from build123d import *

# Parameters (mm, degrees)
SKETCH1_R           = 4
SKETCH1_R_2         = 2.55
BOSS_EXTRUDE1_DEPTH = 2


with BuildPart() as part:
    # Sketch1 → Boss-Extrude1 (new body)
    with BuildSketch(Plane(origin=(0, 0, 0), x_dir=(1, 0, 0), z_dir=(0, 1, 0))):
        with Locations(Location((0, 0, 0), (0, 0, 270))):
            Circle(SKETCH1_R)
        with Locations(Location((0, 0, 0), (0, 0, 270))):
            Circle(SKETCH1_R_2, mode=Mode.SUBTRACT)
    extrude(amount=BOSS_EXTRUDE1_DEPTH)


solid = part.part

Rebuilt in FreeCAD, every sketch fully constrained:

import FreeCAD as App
import Part
import Sketcher
Q = App.Units.Quantity

doc = App.newDocument("Part")
body = doc.addObject("PartDesign::Body", "Body")

# Sketch on XZ plane
sketch1 = doc.addObject("Sketcher::SketchObject", "Sketch")
body.addObject(sketch1)
sketch1.AttachmentSupport = (doc.XZ_Plane, [""])
sketch1.MapMode = "FlatFace"
sketch1.addGeometry([
    Part.Circle(App.Vector(0, 0, 0), App.Vector(0, 0, 1), 4),
    Part.Circle(App.Vector(0, 0, 0), App.Vector(0, 0, 1), 2.5),
], False)
sketch1.addConstraint([
    Sketcher.Constraint("Coincident", 0, 3, -1, 1),
    Sketcher.Constraint("Coincident", 1, 3, -1, 1),
    Sketcher.Constraint("Diameter", 0, Q("8 mm")),
    Sketcher.Constraint("Diameter", 1, Q("5.1 mm")),
])
pad1 = doc.addObject("PartDesign::Pad", "Pad")
body.addObject(pad1)
pad1.Profile = sketch1
pad1.Length = 2
pad1.Reversed = True

doc.recompute()
